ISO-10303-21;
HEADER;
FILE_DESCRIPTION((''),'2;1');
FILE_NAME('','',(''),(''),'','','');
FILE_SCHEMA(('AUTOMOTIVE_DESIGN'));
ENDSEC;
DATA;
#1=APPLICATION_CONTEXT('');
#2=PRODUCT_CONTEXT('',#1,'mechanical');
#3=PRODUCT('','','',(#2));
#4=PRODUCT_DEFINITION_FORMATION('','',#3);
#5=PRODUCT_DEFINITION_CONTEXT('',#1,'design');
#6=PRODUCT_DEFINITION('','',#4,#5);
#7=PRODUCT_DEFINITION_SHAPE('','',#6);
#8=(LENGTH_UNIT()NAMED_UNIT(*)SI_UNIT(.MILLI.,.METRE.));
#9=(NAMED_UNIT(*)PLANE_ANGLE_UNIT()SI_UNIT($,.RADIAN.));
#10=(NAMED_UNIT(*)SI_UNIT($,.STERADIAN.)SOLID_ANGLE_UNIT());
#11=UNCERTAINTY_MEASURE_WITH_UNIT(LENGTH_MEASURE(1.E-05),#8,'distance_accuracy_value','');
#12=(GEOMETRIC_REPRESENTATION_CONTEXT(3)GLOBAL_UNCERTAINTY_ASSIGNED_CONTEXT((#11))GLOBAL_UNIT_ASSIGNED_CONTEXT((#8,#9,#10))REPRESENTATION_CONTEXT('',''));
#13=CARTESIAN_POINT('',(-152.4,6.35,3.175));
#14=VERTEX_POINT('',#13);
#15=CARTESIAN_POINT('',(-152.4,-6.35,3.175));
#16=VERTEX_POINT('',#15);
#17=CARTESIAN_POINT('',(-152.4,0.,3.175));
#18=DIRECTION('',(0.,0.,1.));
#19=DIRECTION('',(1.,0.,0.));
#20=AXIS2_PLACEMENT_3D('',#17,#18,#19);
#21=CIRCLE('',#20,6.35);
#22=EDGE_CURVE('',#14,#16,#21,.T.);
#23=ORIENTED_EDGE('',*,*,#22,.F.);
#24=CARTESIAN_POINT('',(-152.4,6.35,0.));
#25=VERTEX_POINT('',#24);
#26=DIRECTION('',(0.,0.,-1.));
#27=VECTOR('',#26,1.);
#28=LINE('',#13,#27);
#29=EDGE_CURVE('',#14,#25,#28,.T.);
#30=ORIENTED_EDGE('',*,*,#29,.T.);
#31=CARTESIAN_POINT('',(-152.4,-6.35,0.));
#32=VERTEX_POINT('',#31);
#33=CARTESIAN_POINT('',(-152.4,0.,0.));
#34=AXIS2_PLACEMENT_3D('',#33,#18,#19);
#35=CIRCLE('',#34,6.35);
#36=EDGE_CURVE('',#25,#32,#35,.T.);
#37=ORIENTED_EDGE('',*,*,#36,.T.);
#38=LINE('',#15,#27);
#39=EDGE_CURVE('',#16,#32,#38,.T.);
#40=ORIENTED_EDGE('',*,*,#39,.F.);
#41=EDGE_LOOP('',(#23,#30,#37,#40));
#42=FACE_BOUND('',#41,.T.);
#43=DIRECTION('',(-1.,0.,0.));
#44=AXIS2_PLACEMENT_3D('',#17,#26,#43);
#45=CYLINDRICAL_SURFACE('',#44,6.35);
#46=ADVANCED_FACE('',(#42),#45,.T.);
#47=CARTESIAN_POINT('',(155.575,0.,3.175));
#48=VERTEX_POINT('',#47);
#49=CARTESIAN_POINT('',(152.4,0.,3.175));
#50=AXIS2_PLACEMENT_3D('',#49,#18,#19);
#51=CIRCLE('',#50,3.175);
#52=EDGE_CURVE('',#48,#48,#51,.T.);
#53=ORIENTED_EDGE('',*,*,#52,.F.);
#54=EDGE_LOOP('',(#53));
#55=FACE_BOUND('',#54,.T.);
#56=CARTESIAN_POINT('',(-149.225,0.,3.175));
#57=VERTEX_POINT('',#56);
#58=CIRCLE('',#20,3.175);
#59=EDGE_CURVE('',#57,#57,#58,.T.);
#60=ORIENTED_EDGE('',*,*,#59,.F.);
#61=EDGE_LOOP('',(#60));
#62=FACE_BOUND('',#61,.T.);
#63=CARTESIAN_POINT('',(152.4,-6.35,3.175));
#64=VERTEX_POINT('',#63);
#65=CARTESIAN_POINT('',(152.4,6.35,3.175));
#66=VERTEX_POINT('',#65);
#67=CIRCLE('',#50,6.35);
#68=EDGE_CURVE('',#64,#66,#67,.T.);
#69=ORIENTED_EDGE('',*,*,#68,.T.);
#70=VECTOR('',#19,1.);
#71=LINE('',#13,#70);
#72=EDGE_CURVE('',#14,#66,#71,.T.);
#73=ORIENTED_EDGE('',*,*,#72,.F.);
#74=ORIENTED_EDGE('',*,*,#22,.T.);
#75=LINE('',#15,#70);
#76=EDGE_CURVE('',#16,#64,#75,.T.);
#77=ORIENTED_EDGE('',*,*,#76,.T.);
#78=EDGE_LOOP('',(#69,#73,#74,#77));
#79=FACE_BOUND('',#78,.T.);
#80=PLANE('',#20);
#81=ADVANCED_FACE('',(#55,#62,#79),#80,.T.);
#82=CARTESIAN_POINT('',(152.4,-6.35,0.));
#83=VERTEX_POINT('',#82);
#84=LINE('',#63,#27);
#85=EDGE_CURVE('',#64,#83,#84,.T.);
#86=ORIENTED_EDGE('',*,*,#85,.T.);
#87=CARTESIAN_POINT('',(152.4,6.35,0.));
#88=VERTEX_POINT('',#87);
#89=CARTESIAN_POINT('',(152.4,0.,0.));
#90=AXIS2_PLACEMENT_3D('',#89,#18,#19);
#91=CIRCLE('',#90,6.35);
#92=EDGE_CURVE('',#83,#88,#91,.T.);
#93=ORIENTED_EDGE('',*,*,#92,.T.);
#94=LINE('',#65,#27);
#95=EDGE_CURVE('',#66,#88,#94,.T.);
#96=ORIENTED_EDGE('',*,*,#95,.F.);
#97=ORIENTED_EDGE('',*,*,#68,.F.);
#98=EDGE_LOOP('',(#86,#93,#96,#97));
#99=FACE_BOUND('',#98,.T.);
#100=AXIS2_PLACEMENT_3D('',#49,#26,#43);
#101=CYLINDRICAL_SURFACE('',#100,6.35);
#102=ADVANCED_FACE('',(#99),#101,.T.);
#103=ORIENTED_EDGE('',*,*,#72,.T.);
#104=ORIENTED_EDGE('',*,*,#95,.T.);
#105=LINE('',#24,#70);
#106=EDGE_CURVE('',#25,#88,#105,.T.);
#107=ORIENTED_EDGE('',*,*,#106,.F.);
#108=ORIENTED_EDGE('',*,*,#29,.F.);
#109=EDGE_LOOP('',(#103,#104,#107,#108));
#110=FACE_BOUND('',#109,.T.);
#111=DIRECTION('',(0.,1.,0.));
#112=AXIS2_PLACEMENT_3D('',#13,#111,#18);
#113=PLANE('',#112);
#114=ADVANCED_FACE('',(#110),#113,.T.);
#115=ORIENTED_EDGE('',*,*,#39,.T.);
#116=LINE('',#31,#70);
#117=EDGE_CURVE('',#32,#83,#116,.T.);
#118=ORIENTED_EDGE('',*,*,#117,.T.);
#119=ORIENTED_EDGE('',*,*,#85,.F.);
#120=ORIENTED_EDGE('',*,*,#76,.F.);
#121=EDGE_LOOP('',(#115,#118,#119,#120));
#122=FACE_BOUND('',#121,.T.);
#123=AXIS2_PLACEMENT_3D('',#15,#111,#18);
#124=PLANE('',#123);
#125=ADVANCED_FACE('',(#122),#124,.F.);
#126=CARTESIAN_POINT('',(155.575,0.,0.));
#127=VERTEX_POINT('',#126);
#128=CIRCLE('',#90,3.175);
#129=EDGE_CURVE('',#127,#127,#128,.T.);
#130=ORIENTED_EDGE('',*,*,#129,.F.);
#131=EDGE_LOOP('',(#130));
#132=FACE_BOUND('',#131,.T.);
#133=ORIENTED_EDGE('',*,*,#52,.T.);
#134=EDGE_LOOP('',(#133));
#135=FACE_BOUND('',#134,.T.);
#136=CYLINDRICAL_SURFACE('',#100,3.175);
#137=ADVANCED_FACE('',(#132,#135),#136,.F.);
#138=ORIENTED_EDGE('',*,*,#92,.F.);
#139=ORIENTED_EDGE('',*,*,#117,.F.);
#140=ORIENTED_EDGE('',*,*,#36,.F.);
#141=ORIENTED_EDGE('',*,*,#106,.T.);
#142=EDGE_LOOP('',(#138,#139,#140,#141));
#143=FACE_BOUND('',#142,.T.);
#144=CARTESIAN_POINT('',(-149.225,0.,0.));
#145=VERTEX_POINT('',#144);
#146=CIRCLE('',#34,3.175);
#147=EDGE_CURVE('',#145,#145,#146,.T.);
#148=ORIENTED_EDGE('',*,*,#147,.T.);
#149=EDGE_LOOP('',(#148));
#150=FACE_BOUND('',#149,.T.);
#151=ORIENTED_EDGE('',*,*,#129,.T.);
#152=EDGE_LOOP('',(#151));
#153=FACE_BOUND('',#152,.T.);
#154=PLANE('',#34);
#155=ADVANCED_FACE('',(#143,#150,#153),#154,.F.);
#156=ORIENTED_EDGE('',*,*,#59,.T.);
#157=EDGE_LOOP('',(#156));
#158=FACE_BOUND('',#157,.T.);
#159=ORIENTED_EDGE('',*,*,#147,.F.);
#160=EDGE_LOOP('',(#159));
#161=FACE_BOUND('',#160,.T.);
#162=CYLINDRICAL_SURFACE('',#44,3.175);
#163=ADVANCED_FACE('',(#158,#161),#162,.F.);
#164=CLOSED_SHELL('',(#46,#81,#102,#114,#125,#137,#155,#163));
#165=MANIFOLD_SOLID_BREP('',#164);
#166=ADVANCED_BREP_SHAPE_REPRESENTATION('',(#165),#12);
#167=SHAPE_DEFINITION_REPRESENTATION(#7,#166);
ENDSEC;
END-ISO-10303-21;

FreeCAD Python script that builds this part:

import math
import FreeCAD as App
import Part
import Sketcher
from FreeCAD import Vector
Q = App.Units.Quantity

doc = App.newDocument("Part")
params = doc.addObject("Spreadsheet::Sheet", "Params")
for row, (alias, value) in enumerate([
    ("sketch1_diameter", "0.25 in"),
    ("sketch1_width", "12 in"),
    ("sketch1_radius", "0.25 in"),
    ("pad1_length", "0.125 in"),
], start=1):
    params.set(f"A{row}", alias)
    params.set(f"B{row}", "=" + value)
    params.setAlias(f"B{row}", alias)

body = doc.addObject("PartDesign::Body", "Body")

sketch1 = body.newObject("Sketcher::SketchObject", "Sketch")
sketch1.AttachmentSupport = (doc.getObject("XY_Plane"), [""])
sketch1.MapMode = "FlatFace"
sketch1.addGeometry([
    Part.LineSegment(Vector(152.4, 6.3, 0), Vector(-152.4, 6.3, 0)),
    Part.ArcOfCircle(Part.Circle(Vector(-152.4, 0, 0), Vector(0, 0, 1), 6.3), math.radians(90), math.radians(270)),
    Part.LineSegment(Vector(-152.4, -6.3, 0), Vector(152.4, -6.3, 0)),
    Part.ArcOfCircle(Part.Circle(Vector(152.4, 0, 0), Vector(0, 0, 1), 6.3), math.radians(-90), math.radians(90)),
    Part.Circle(Vector(152.4, 0, 0), Vector(0, 0, 1), 3.2),
    Part.Circle(Vector(-152.4, 0, 0), Vector(0, 0, 1), 3.2),
], False)
sketch1.addConstraint([
    Sketcher.Constraint("Tangent", 0, 2, 1, 1),
    Sketcher.Constraint("Tangent", 1, 2, 2, 1),
    Sketcher.Constraint("Tangent", 2, 2, 3, 1),
    Sketcher.Constraint("Tangent", 3, 2, 0, 1),
    Sketcher.Constraint("Horizontal", 0),
    Sketcher.Constraint("Horizontal", 2),
    Sketcher.Constraint("Coincident", 4, 3, 3, 3),
    Sketcher.Constraint("Coincident", 5, 3, 1, 3),
    Sketcher.Constraint("Equal", 4, 5),
    Sketcher.Constraint("Symmetric", 1, 3, 3, 3, -1, 1),
    Sketcher.Constraint("Diameter", 4, Q("0.25 in")),
    Sketcher.Constraint("DistanceX", 0, 2, 0, 1, Q("12 in")),
    Sketcher.Constraint("Radius", 1, Q("0.25 in")),
])
sketch1.setExpression("Constraints[10]", "Params.sketch1_diameter")
sketch1.setExpression("Constraints[11]", "Params.sketch1_width")
sketch1.setExpression("Constraints[12]", "Params.sketch1_radius")
pad1 = body.newObject("PartDesign::Pad", "Pad")
pad1.Profile = sketch1
pad1.setExpression("Length", "Params.pad1_length")

doc.recompute()
